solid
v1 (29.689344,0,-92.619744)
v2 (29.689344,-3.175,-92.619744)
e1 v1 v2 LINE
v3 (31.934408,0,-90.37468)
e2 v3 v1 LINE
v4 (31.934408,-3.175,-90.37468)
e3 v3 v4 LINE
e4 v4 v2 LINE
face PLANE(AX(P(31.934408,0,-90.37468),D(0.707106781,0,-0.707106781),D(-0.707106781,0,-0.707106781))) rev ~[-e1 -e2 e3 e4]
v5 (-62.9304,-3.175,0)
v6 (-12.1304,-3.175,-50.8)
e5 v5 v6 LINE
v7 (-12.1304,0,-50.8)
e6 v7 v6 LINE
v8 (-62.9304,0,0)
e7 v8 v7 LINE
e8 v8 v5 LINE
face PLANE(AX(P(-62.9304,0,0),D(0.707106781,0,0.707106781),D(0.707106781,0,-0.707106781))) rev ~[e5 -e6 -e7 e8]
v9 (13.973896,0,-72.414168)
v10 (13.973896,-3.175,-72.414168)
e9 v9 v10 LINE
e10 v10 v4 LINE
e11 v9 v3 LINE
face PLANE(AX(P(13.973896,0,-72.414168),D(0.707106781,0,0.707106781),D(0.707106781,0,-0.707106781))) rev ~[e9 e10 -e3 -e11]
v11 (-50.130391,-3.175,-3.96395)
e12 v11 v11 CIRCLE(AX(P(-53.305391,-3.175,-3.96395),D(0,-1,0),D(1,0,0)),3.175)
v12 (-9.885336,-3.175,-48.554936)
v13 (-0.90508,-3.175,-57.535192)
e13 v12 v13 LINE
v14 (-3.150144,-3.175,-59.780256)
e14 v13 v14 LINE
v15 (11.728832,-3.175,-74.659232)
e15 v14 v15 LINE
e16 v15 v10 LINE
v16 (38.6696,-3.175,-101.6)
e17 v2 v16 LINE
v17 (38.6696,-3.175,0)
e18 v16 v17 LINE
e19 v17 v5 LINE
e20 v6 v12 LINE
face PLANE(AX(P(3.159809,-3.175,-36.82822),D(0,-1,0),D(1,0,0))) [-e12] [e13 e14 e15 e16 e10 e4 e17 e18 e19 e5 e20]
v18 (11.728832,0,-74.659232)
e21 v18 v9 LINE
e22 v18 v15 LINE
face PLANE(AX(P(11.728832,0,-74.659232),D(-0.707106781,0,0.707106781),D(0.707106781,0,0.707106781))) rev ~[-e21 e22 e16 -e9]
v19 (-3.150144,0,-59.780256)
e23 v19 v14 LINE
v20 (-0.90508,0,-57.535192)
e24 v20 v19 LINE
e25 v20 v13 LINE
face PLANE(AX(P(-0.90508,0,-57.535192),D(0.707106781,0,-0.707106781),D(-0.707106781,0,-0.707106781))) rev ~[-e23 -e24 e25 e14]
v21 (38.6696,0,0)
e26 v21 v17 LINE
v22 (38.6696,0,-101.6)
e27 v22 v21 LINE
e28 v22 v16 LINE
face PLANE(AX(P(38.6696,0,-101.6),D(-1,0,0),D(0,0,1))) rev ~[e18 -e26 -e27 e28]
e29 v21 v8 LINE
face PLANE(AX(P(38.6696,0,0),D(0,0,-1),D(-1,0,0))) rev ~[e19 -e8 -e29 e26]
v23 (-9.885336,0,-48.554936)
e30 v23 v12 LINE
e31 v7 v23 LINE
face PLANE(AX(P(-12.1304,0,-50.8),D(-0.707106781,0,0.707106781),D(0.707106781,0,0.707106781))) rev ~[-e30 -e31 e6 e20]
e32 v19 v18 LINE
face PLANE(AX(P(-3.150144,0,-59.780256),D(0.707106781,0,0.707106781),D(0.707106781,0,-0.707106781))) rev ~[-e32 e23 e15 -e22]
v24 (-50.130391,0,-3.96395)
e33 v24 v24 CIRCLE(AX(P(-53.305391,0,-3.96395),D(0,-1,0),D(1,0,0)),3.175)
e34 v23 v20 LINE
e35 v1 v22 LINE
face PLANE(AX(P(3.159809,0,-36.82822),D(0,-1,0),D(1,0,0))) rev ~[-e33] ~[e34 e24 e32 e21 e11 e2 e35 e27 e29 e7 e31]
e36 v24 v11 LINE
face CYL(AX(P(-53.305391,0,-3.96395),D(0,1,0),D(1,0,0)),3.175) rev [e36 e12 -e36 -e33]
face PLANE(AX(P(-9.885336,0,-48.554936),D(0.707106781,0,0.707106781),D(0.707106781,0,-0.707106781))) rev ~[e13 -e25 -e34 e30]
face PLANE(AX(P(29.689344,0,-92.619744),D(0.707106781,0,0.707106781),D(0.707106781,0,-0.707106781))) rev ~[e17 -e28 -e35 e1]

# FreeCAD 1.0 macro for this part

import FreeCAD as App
import Part
import Sketcher

V = App.Vector
Q = App.Units.Quantity

doc = App.newDocument("Part")
params = doc.addObject("Spreadsheet::Sheet", "Params")
for row, (alias, value) in enumerate([
    ("sketch1_diameter", "0.25 in"),
    ("sketch1_width", "4 in"),
    ("sketch1_length", "1 in"),
    ("sketch1_length2", "0.5 in"),
    ("sketch1_length3", "0.125 in"),
    ("pad1_length", "0.125 in"),
], start=1):
    params.set(f"A{row}", alias)
    params.set(f"B{row}", "=" + value)
    params.setAlias(f"B{row}", alias)

body = doc.addObject("PartDesign::Body", "Body")

sketch1 = doc.addObject("Sketcher::SketchObject", "Sketch")
body.addObject(sketch1)
sketch1.AttachmentSupport = (doc.XZ_Plane, [""])
sketch1.MapMode = "FlatFace"
sketch1.addGeometry([
    Part.LineSegment(V(38.6696, 0, 0), V(-62.9304, 0, 0)),
    Part.LineSegment(V(-62.9304, 0, 0), V(-12.1304, -50.8, 0)),
    Part.LineSegment(V(-12.1304, -50.8, 0), V(-9.885336, -48.554936, 0)),
    Part.LineSegment(V(-9.885336, -48.554936, 0), V(-0.90508, -57.535192, 0)),
    Part.LineSegment(V(-0.90508, -57.535192, 0), V(-3.150144, -59.780256, 0)),
    Part.LineSegment(V(-3.150144, -59.780256, 0), V(11.728832, -74.659232, 0)),
    Part.LineSegment(V(11.728832, -74.659232, 0), V(13.973896, -72.414168, 0)),
    Part.LineSegment(V(13.973896, -72.414168, 0), V(31.934408, -90.37468, 0)),
    Part.LineSegment(V(31.934408, -90.37468, 0), V(29.689344, -92.619744, 0)),
    Part.LineSegment(V(29.689344, -92.619744, 0), V(38.6696, -101.6, 0)),
    Part.LineSegment(V(38.6696, -101.6, 0), V(38.6696, 0, 0)),
    Part.Circle(V(-53.305391, -3.96395, 0), V(0, 0, 1), 3.175),
], False)
sketch1.addConstraint([
    Sketcher.Constraint("Coincident", 0, 2, 1, 1),
    Sketcher.Constraint("Coincident", 1, 2, 2, 1),
    Sketcher.Constraint("Coincident", 2, 2, 3, 1),
    Sketcher.Constraint("Coincident", 3, 2, 4, 1),
    Sketcher.Constraint("Coincident", 4, 2, 5, 1),
    Sketcher.Constraint("Coincident", 5, 2, 6, 1),
    Sketcher.Constraint("Coincident", 6, 2, 7, 1),
    Sketcher.Constraint("Coincident", 7, 2, 8, 1),
    Sketcher.Constraint("Coincident", 8, 2, 9, 1),
    Sketcher.Constraint("Coincident", 9, 2, 10, 1),
    Sketcher.Constraint("Coincident", 10, 2, 0, 1),
    Sketcher.Constraint("Horizontal", 0),
    Sketcher.Constraint("Vertical", 10),
    Sketcher.Constraint("PointOnObject", 0, 2, -1),
    Sketcher.Constraint("Perpendicular", 1, 2),
    Sketcher.Constraint("Perpendicular", 2, 3),
    Sketcher.Constraint("Perpendicular", 3, 4),
    Sketcher.Constraint("Perpendicular", 4, 5),
    Sketcher.Constraint("Perpendicular", 5, 6),
    Sketcher.Constraint("Perpendicular", 6, 7),
    Sketcher.Constraint("Perpendicular", 7, 8),
    Sketcher.Constraint("Perpendicular", 8, 9),
    Sketcher.Constraint("Equal", 0, 10),
    Sketcher.Constraint("Equal", 2, 4),
    Sketcher.Constraint("Equal", 4, 6),
    Sketcher.Constraint("Equal", 6, 8),
    Sketcher.Constraint("Equal", 3, 9),
    Sketcher.Constraint("Diameter", 11, Q("0.25 in")),
    Sketcher.Constraint("DistanceX", 0, 2, 0, 1, Q("4 in")),
    Sketcher.Constraint("Distance", 7, Q("1 in")),
    Sketcher.Constraint("DistanceY", 1, 2, -1, 1, Q("2 in")),
    Sketcher.Constraint("Distance", 3, Q("0.5 in")),
    Sketcher.Constraint("Distance", 2, Q("0.125 in")),
    Sketcher.Constraint("DistanceX", 0, 2, -1, 1, 62.9304),
    Sketcher.Constraint("DistanceX", 11, 3, -1, 1, 53.305391),
    Sketcher.Constraint("DistanceY", 11, 3, -1, 1, 3.96395),
])
sketch1.setExpression("Constraints[27]", "Params.sketch1_diameter")
sketch1.setExpression("Constraints[28]", "Params.sketch1_width")
sketch1.setExpression("Constraints[29]", "Params.sketch1_length")
sketch1.setExpression("Constraints[31]", "Params.sketch1_length2")
sketch1.setExpression("Constraints[32]", "Params.sketch1_length3")
pad1 = doc.addObject("PartDesign::Pad", "Pad")
body.addObject(pad1)
pad1.Profile = sketch1
pad1.setExpression("Length", "Params.pad1_length")

doc.recompute()
